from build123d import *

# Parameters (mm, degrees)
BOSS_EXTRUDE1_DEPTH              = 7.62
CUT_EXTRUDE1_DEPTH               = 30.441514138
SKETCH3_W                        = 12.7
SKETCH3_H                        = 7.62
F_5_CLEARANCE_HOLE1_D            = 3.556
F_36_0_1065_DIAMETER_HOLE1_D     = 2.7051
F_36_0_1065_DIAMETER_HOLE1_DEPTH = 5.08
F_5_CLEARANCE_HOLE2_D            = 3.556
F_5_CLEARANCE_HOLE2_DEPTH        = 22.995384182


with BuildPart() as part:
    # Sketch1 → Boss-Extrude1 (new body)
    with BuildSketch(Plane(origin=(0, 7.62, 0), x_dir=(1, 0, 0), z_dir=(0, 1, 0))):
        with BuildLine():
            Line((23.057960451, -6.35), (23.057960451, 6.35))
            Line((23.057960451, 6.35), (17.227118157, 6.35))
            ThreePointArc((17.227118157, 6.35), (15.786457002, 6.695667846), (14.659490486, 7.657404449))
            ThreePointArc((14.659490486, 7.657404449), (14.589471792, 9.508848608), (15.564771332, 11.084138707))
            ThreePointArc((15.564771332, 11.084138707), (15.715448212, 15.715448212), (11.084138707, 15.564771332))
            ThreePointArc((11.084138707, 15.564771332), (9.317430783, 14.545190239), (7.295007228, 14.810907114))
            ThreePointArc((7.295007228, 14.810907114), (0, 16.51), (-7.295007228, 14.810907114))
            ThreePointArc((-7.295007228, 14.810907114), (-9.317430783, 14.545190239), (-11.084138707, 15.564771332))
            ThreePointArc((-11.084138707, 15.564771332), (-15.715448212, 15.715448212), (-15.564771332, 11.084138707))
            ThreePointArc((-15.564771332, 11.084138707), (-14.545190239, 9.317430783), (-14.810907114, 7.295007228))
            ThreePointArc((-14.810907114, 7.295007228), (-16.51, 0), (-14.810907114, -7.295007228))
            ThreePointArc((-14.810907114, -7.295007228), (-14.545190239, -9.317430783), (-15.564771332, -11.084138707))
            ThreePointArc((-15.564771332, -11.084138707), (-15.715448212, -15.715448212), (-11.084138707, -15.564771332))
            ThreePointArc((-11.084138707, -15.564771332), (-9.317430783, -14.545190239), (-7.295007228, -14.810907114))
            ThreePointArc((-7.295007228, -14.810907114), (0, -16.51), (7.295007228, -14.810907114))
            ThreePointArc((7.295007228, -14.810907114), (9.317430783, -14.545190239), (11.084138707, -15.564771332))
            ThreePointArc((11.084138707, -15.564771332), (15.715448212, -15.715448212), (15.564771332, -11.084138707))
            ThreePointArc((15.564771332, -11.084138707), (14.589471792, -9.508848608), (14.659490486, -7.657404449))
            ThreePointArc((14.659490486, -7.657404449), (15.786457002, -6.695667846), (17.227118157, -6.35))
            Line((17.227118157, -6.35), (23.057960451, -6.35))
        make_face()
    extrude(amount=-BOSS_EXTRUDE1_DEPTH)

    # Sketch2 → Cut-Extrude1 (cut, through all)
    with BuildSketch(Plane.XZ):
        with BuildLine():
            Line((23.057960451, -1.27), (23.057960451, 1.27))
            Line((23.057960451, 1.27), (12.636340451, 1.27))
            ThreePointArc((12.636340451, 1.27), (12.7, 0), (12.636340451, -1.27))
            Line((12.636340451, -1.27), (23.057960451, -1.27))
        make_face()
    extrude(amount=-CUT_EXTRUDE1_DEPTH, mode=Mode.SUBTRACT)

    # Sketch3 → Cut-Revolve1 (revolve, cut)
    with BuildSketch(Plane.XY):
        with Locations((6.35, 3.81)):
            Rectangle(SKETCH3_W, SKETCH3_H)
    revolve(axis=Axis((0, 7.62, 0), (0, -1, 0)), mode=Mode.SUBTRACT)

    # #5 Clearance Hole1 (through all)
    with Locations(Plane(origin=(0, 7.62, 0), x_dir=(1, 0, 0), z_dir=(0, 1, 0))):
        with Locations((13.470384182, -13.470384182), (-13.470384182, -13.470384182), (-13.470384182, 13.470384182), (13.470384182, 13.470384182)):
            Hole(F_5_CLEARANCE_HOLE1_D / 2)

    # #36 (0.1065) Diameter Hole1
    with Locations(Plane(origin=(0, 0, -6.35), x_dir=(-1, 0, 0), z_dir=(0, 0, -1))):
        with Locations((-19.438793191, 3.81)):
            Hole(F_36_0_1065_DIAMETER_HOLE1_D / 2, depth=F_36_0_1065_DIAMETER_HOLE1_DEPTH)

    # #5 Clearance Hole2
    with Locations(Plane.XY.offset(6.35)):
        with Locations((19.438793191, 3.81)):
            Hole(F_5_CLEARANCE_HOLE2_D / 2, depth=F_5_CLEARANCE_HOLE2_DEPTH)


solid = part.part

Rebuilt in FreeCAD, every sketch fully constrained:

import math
import FreeCAD as App
import Part
import Sketcher
from FreeCAD import Vector
Q = App.Units.Quantity


def add_polygon(sketch, points):
    """Adds a closed chain of lines whose ends are joined by coincident constraints."""
    first, n = sketch.GeometryCount, len(points)
    for a, b in zip(points, points[1:] + points[:1]):
        sketch.addGeometry(Part.LineSegment(App.Vector(*a, 0), App.Vector(*b, 0)), False)
    for i in range(n):
        sketch.addConstraint(Sketcher.Constraint("Coincident", first + i, 2, first + (i + 1) % n, 1))

doc = App.newDocument("Part")
body = doc.addObject("PartDesign::Body", "Body")

# Sketch on XZ plane
sketch1 = doc.addObject("Sketcher::SketchObject", "Sketch")
body.addObject(sketch1)
sketch1.AttachmentSupport = (doc.XZ_Plane, [""])
sketch1.MapMode = "FlatFace"
sketch1.AttachmentOffset = App.Placement(Vector(0, 0, -0.3 * 25.4), App.Rotation())
sketch1.addGeometry([
    Part.LineSegment(Vector(23.05796, 6.35, 0), Vector(23.05796, -6.35, 0)),  # 0
    Part.LineSegment(Vector(23.05796, -6.35, 0), Vector(17.227118, -6.35, 0)),  # 1
    Part.ArcOfCircle(Part.Circle(Vector(17.227118, -9.525, 0), Vector(0, 0, 1), 3.175), math.radians(90), math.radians(143.96927)),  # 2
    Part.ArcOfCircle(Part.Circle(Vector(17.659158, -8.697893, 0), Vector(0, 0, 1), 3.175), math.radians(160.869977), math.radians(228.726853)),  # 3
    Part.ArcOfCircle(Part.Circle(Vector(13.470384, -13.470384, 0), Vector(0, 0, 1), 3.175), math.radians(-138.726853), math.radians(48.726853)),  # 4
    Part.ArcOfCircle(Part.Circle(Vector(8.697893, -17.659158, 0), Vector(0, 0, 1), 3.175), math.radians(41.273147), math.radians(116.222225)),  # 5
    Part.ArcOfCircle(Part.Circle(Vector(0, 0, 0), Vector(0, 0, 1), 16.51), math.radians(-116.222225), math.radians(-63.777775)),  # 6
    Part.ArcOfCircle(Part.Circle(Vector(-8.697893, -17.659158, 0), Vector(0, 0, 1), 3.175), math.radians(63.777775), math.radians(138.726853)),  # 7
    Part.ArcOfCircle(Part.Circle(Vector(-13.470384, -13.470384, 0), Vector(0, 0, 1), 3.175), math.radians(131.273147), math.radians(318.726853)),  # 8
    Part.ArcOfCircle(Part.Circle(Vector(-17.659158, -8.697893, 0), Vector(0, 0, 1), 3.175), math.radians(-48.726853), math.radians(26.222225)),  # 9
    Part.ArcOfCircle(Part.Circle(Vector(0, 0, 0), Vector(0, 0, 1), 16.51), math.radians(153.777775), math.radians(206.222225)),  # 10
    Part.ArcOfCircle(Part.Circle(Vector(-17.659158, 8.697893, 0), Vector(0, 0, 1), 3.175), math.radians(-26.222225), math.radians(48.726853)),  # 11
    Part.ArcOfCircle(Part.Circle(Vector(-13.470384, 13.470384, 0), Vector(0, 0, 1), 3.175), math.radians(41.273147), math.radians(228.726853)),  # 12
    Part.ArcOfCircle(Part.Circle(Vector(-8.697893, 17.659158, 0), Vector(0, 0, 1), 3.175), math.radians(-138.726853), math.radians(-63.777775)),  # 13
    Part.ArcOfCircle(Part.Circle(Vector(0, 0, 0), Vector(0, 0, 1), 16.51), math.radians(63.777775), math.radians(116.222225)),  # 14
    Part.ArcOfCircle(Part.Circle(Vector(8.697893, 17.659158, 0), Vector(0, 0, 1), 3.175), math.radians(-116.222225), math.radians(-41.273147)),  # 15
    Part.ArcOfCircle(Part.Circle(Vector(13.470384, 13.470384, 0), Vector(0, 0, 1), 3.175), math.radians(-48.726853), math.radians(138.726853)),  # 16
    Part.ArcOfCircle(Part.Circle(Vector(17.659158, 8.697893, 0), Vector(0, 0, 1), 3.175), math.radians(131.273147), math.radians(199.130023)),  # 17
    Part.ArcOfCircle(Part.Circle(Vector(17.227118, 9.525, 0), Vector(0, 0, 1), 3.175), math.radians(-143.96927), math.radians(-90)),  # 18
    Part.LineSegment(Vector(17.227118, 6.35, 0), Vector(23.05796, 6.35, 0)),  # 19
], False)
sketch1.addConstraint([
    Sketcher.Constraint("Coincident", 0, 2, 1, 1),
    Sketcher.Constraint("Tangent", 1, 2, 2, 1),
    Sketcher.Constraint("Coincident", 2, 2, 3, 1),
    Sketcher.Constraint("Tangent", 3, 2, 4, 2),
    Sketcher.Constraint("Tangent", 4, 1, 5, 1),
    Sketcher.Constraint("Tangent", 5, 2, 6, 2),
    Sketcher.Constraint("Tangent", 6, 1, 7, 1),
    Sketcher.Constraint("Tangent", 7, 2, 8, 2),
    Sketcher.Constraint("Tangent", 8, 1, 9, 1),
    Sketcher.Constraint("Tangent", 9, 2, 10, 2),
    Sketcher.Constraint("Tangent", 10, 1, 11, 1),
    Sketcher.Constraint("Tangent", 11, 2, 12, 2),
    Sketcher.Constraint("Tangent", 12, 1, 13, 1),
    Sketcher.Constraint("Tangent", 13, 2, 14, 2),
    Sketcher.Constraint("Tangent", 14, 1, 15, 1),
    Sketcher.Constraint("Tangent", 15, 2, 16, 2),
    Sketcher.Constraint("Tangent", 16, 1, 17, 1),
    Sketcher.Constraint("Coincident", 17, 2, 18, 1),
    Sketcher.Constraint("Tangent", 18, 2, 19, 1),
    Sketcher.Constraint("Coincident", 19, 2, 0, 1),
    Sketcher.Constraint("Vertical", 0),
    Sketcher.Constraint("Horizontal", 1),
    Sketcher.Constraint("Horizontal", 19),
    Sketcher.Constraint("Coincident", 6, 3, -1, 1),
    Sketcher.Constraint("Coincident", 10, 3, -1, 1),
    Sketcher.Constraint("Coincident", 14, 3, -1, 1),
    Sketcher.Constraint("Equal", 2, 3),
    Sketcher.Constraint("Equal", 3, 4),
    Sketcher.Constraint("Equal", 4, 5),
    Sketcher.Constraint("Equal", 5, 7),
    Sketcher.Constraint("Equal", 7, 8),
    Sketcher.Constraint("Equal", 8, 9),
    Sketcher.Constraint("Equal", 6, 10),
    Sketcher.Constraint("Equal", 9, 11),
    Sketcher.Constraint("Equal", 11, 12),
    Sketcher.Constraint("Equal", 12, 13),
    Sketcher.Constraint("Equal", 10, 14),
    Sketcher.Constraint("Equal", 13, 15),
    Sketcher.Constraint("Equal", 15, 16),
    Sketcher.Constraint("Equal", 16, 17),
    Sketcher.Constraint("Equal", 17, 18),
    Sketcher.Constraint("Symmetric", 3, 3, 11, 3, -1, 1),
    Sketcher.Constraint("Symmetric", 8, 3, 16, 3, -1, 1),
    Sketcher.Constraint("Symmetric", 4, 3, 8, 3, -2),
    Sketcher.Constraint("Symmetric", 2, 3, 18, 3, -1),
    Sketcher.Constraint("Horizontal", 13, 3, 15, 3),
    Sketcher.Constraint("Horizontal", 11, 3, 17, 3),
    Sketcher.Constraint("Radius", 6, Q("0.65 in")),
    Sketcher.Constraint("DistanceY", 0, 2, 0, 1, Q("0.5 in")),
    Sketcher.Constraint("Radius", 2, Q("0.125 in")),
    Sketcher.Constraint("DistanceX", 3, 3, 0, 2, Q("5.398802 mm")),
    Sketcher.Constraint("DistanceX", 6, 1, 5, 3, Q("15.9929 mm")),
    Sketcher.Constraint("DistanceY", 6, 1, 9, 2, Q("7.5159 mm")),
    Sketcher.Constraint("DistanceX", 1, 2, 1, 1, Q("5.830842 mm")),
])
pad1 = doc.addObject("PartDesign::Pad", "Pad")
body.addObject(pad1)
pad1.Profile = sketch1
pad1.Length = Q("0.3 in")

# Sketch on XZ plane
sketch2 = doc.addObject("Sketcher::SketchObject", "Sketch001")
body.addObject(sketch2)
sketch2.AttachmentSupport = (doc.XZ_Plane, [""])
sketch2.MapMode = "FlatFace"
sketch2.addGeometry([
    Part.LineSegment(Vector(23.05796, -1.27, 0), Vector(23.05796, 1.27, 0)),
    Part.LineSegment(Vector(23.05796, 1.27, 0), Vector(12.63634, 1.27, 0)),
    Part.ArcOfCircle(Part.Circle(Vector(0, 0, 0), Vector(0, 0, 1), 12.7), math.radians(-5.73917), math.radians(5.73917)),
    Part.LineSegment(Vector(12.63634, -1.27, 0), Vector(23.05796, -1.27, 0)),
], False)
sketch2.addConstraint([
    Sketcher.Constraint("Coincident", 0, 2, 1, 1),
    Sketcher.Constraint("Coincident", 1, 2, 2, 2),
    Sketcher.Constraint("Coincident", 2, 1, 3, 1),
    Sketcher.Constraint("Coincident", 3, 2, 0, 1),
    Sketcher.Constraint("Vertical", 0),
    Sketcher.Constraint("Horizontal", 1),
    Sketcher.Constraint("Horizontal", 3),
    Sketcher.Constraint("Coincident", 2, 3, -1, 1),
    Sketcher.Constraint("Vertical", 1, 2, 2, 1),
    Sketcher.Constraint("Radius", 2, Q("0.5 in")),
    Sketcher.Constraint("DistanceY", 0, 1, 0, 2, Q("0.1 in")),
    Sketcher.Constraint("DistanceX", 1, 2, 1, 1, Q("0.4103 in")),
])
pocket1 = doc.addObject("PartDesign::Pocket", "Pocket")
body.addObject(pocket1)
pocket1.Profile = sketch2
pocket1.Type = "ThroughAll"

# Sketch on XY plane
sketch3 = doc.addObject("Sketcher::SketchObject", "Sketch002")
body.addObject(sketch3)
sketch3.AttachmentSupport = (doc.XY_Plane, [""])
sketch3.MapMode = "FlatFace"
add_polygon(sketch3, [(0, 7.62), (0, 0), (12.7, 0), (12.7, 7.62)])  # lines 0-3
sketch3.addConstraint([
    Sketcher.Constraint("Vertical", 0),
    Sketcher.Constraint("Horizontal", 1),
    Sketcher.Constraint("Vertical", 2),
    Sketcher.Constraint("Horizontal", 3),
    Sketcher.Constraint("Coincident", 0, 2, -1, 1),
    Sketcher.Constraint("DistanceX", 1, 1, 1, 2, Q("0.5 in")),
    Sketcher.Constraint("DistanceY", 0, 2, 0, 1, Q("0.3 in")),
])
groove = doc.addObject("PartDesign::Groove", "Groove")
body.addObject(groove)
groove.Profile = sketch3
groove.ReferenceAxis = (sketch3, ["V_Axis"])
groove.Angle = 360

# Sketch on XZ plane
sketch4 = doc.addObject("Sketcher::SketchObject", "Sketch003")
body.addObject(sketch4)
sketch4.AttachmentSupport = (doc.XZ_Plane, [""])
sketch4.MapMode = "FlatFace"
sketch4.AttachmentOffset = App.Placement(Vector(0, 0, -0.3 * 25.4), App.Rotation())
sketch4.addGeometry([
    Part.Circle(Vector(13.470384, 13.470384, 0), Vector(0, 0, 1), 1.778),
    Part.Circle(Vector(-13.470384, 13.470384, 0), Vector(0, 0, 1), 1.778),
    Part.Circle(Vector(-13.470384, -13.470384, 0), Vector(0, 0, 1), 1.778),
    Part.Circle(Vector(13.470384, -13.470384, 0), Vector(0, 0, 1), 1.778),
], False)
sketch4.addConstraint([
    Sketcher.Constraint("Equal", 0, 1),
    Sketcher.Constraint("Equal", 1, 2),
    Sketcher.Constraint("Equal", 2, 3),
    Sketcher.Constraint("Symmetric", 0, 3, 2, 3, -1, 1),
    Sketcher.Constraint("Symmetric", 1, 3, 3, 3, -1, 1),
    Sketcher.Constraint("Symmetric", 0, 3, 1, 3, -2),
    Sketcher.Constraint("Diameter", 0, Q("0.14 in")),
    Sketcher.Constraint("DistanceX", 1, 3, 0, 3, Q("26.940768 mm")),
    Sketcher.Constraint("DistanceY", 2, 3, 1, 3, Q("26.940768 mm")),
])
doc.recompute()
hole = doc.addObject("PartDesign::Hole", "Hole")
body.addObject(hole)
hole.Profile = sketch4
hole.ThreadType = "None"
hole.Diameter = Q("0.14 in")
hole.DepthType = "ThroughAll"
hole.Reversed = True

# Sketch on XY plane
sketch5 = doc.addObject("Sketcher::SketchObject", "Sketch004")
body.addObject(sketch5)
sketch5.AttachmentSupport = (doc.XY_Plane, [""])
sketch5.MapMode = "FlatFace"
sketch5.AttachmentOffset = App.Placement(Vector(0, 0, -0.25 * 25.4), App.Rotation())
sketch5.addGeometry(Part.Circle(Vector(19.438793, 3.81, 0), Vector(0, 0, 1), 1.35255), False)
sketch5.addConstraint([
    Sketcher.Constraint("Diameter", 0, Q("0.1065 in")),
    Sketcher.Constraint("DistanceY", -1, 1, 0, 3, Q("0.15 in")),
    Sketcher.Constraint("DistanceX", -1, 1, 0, 3, Q("19.438793 mm")),
])
doc.recompute()
hole2 = doc.addObject("PartDesign::Hole", "Hole001")
body.addObject(hole2)
hole2.Profile = sketch5
hole2.ThreadType = "None"
hole2.Diameter = Q("0.1065 in")
hole2.DepthType = "Dimension"
hole2.Depth = Q("0.2 in")
hole2.DrillPoint = "Flat"
hole2.Reversed = True

# Sketch on XY plane
sketch6 = doc.addObject("Sketcher::SketchObject", "Sketch005")
body.addObject(sketch6)
sketch6.AttachmentSupport = (doc.XY_Plane, [""])
sketch6.MapMode = "FlatFace"
sketch6.AttachmentOffset = App.Placement(Vector(0, 0, 0.25 * 25.4), App.Rotation())
sketch6.addGeometry(Part.Circle(Vector(19.438793, 3.81, 0), Vector(0, 0, 1), 1.778), False)
sketch6.addConstraint([
    Sketcher.Constraint("Diameter", 0, Q("0.14 in")),
    Sketcher.Constraint("DistanceY", -1, 1, 0, 3, Q("0.15 in")),
    Sketcher.Constraint("DistanceX", -1, 1, 0, 3, Q("19.438793 mm")),
])
doc.recompute()
hole3 = doc.addObject("PartDesign::Hole", "Hole002")
body.addObject(hole3)
hole3.Profile = sketch6
hole3.ThreadType = "None"
hole3.Diameter = Q("0.14 in")
hole3.DepthType = "Dimension"
hole3.Depth = 22.995384
hole3.DrillPoint = "Flat"

doc.recompute()
